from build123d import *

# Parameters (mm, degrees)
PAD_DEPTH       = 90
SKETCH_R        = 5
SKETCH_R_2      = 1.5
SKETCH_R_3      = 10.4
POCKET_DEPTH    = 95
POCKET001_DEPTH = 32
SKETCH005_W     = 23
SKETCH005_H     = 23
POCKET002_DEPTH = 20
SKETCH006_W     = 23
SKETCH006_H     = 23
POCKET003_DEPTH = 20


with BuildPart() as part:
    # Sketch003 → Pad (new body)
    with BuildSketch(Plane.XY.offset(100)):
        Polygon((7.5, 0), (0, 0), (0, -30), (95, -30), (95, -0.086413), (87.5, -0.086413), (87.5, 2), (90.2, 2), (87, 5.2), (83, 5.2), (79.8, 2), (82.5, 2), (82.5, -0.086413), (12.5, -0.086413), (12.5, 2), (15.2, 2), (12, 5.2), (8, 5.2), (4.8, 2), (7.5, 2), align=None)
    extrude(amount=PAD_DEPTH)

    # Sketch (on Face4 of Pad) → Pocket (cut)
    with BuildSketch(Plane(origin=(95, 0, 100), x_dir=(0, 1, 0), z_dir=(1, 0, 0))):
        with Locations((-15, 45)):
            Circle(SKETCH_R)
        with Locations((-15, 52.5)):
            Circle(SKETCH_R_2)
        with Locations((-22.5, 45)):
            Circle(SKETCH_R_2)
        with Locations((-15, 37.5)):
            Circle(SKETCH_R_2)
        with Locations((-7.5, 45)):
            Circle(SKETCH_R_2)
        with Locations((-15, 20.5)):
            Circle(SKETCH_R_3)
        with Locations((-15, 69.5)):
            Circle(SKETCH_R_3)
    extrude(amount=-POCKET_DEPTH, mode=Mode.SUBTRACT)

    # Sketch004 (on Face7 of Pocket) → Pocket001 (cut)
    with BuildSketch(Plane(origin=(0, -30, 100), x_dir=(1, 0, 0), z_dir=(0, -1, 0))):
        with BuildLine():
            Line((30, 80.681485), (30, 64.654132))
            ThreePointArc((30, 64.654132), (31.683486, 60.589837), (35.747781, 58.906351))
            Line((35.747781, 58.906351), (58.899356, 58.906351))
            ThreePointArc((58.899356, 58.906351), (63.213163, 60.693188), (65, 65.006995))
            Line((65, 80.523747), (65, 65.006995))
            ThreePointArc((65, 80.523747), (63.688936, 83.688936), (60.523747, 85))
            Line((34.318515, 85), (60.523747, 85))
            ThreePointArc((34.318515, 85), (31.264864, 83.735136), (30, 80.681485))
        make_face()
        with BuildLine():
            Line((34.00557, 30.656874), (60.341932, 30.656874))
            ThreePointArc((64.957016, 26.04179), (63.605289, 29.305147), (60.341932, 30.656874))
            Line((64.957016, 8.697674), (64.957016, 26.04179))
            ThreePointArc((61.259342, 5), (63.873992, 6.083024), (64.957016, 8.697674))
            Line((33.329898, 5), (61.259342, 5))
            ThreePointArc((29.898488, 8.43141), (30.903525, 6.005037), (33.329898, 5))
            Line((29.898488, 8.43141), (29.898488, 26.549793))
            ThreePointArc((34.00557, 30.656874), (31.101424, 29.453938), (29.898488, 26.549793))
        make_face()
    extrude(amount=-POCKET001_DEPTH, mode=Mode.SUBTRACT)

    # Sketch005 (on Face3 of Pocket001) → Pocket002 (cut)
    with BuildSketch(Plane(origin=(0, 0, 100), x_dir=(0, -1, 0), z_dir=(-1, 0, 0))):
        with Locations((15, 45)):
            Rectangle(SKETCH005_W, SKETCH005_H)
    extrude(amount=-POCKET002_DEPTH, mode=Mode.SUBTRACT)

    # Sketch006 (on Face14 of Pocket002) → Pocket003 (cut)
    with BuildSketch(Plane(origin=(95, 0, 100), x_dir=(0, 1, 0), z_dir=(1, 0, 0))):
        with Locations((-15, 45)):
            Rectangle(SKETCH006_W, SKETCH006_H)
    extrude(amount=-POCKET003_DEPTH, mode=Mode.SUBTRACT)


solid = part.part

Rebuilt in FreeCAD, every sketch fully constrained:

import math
import FreeCAD as App
import Part
import Sketcher
from FreeCAD import Vector
Q = App.Units.Quantity


def add_polygon(sketch, points):
    """Adds a closed chain of lines whose ends are joined by coincident constraints."""
    first, n = sketch.GeometryCount, len(points)
    for a, b in zip(points, points[1:] + points[:1]):
        sketch.addGeometry(Part.LineSegment(App.Vector(*a, 0), App.Vector(*b, 0)), False)
    for i in range(n):
        sketch.addConstraint(Sketcher.Constraint("Coincident", first + i, 2, first + (i + 1) % n, 1))

doc = App.newDocument("Part")
body = doc.addObject("PartDesign::Body", "Body")

# Sketch on XY plane
sketch1 = body.newObject("Sketcher::SketchObject", "Sketch")
sketch1.AttachmentSupport = (doc.getObject("XY_Plane"), [""])
sketch1.MapMode = "FlatFace"
sketch1.AttachmentOffset = App.Placement(Vector(0, 0, 100), App.Rotation())
add_polygon(sketch1, [(7.5, 0), (0, 0), (0, -30), (95, -30), (95, -0.086413), (87.5, -0.086413), (87.5, 2), (90.2, 2), (87, 5.2), (83, 5.2), (79.8, 2), (82.5, 2), (82.5, -0.086413), (12.5, -0.086413), (12.5, 2), (15.2, 2), (12, 5.2), (8, 5.2), (4.8, 2), (7.5, 2)])  # lines 0-19
sketch1.addConstraint([
    Sketcher.Constraint("Horizontal", 0),
    Sketcher.Constraint("Vertical", 1),
    Sketcher.Constraint("Horizontal", 2),
    Sketcher.Constraint("Vertical", 3),
    Sketcher.Constraint("Horizontal", 4),
    Sketcher.Constraint("Vertical", 5),
    Sketcher.Constraint("Horizontal", 6),
    Sketcher.Constraint("Horizontal", 8),
    Sketcher.Constraint("Horizontal", 10),
    Sketcher.Constraint("Vertical", 11),
    Sketcher.Constraint("Horizontal", 12),
    Sketcher.Constraint("Vertical", 13),
    Sketcher.Constraint("Horizontal", 14),
    Sketcher.Constraint("Horizontal", 16),
    Sketcher.Constraint("Horizontal", 18),
    Sketcher.Constraint("Vertical", 19),
    Sketcher.Constraint("Coincident", 0, 2, -1, 1),
    Sketcher.Constraint("Perpendicular", 7, 9),
    Sketcher.Constraint("Perpendicular", 9, 15),
    Sketcher.Constraint("Perpendicular", 15, 17),
    Sketcher.Constraint("Horizontal", 6, 2, 9, 2),
    Sketcher.Constraint("Horizontal", 4, 2, 11, 2),
    Sketcher.Constraint("Horizontal", 10, 2, 13, 2),
    Sketcher.Constraint("Horizontal", 8, 2, 15, 2),
    Sketcher.Constraint("Horizontal", 14, 2, 17, 2),
    Sketcher.Constraint("Equal", 0, 4),
    Sketcher.Constraint("Equal", 6, 10),
    Sketcher.Constraint("Equal", 10, 14),
    Sketcher.Constraint("Equal", 8, 16),
    Sketcher.Constraint("Equal", 14, 18),
    Sketcher.Constraint("Equal", 7, 9),
    Sketcher.Constraint("DistanceX", 2, 1, 2, 2, Q("95 mm")),
    Sketcher.Constraint("DistanceX", 8, 2, 8, 1, Q("4 mm")),
    Sketcher.Constraint("DistanceX", 12, 2, 12, 1, Q("70 mm")),
    Sketcher.Constraint("DistanceY", 1, 2, 1, 1, Q("30 mm")),
    Sketcher.Constraint("DistanceY", 19, 2, 19, 1, Q("2 mm")),
    Sketcher.Constraint("DistanceX", 0, 2, 0, 1, Q("7.5 mm")),
    Sketcher.Constraint("DistanceX", 6, 1, 6, 2, Q("2.7 mm")),
    Sketcher.Constraint("DistanceY", 3, 1, 3, 2, Q("29.913587 mm")),
])
pad1 = body.newObject("PartDesign::Pad", "Pad")
pad1.Profile = sketch1
pad1.Length = 90

# Sketch on YZ plane
sketch2 = body.newObject("Sketcher::SketchObject", "Sketch001")
sketch2.AttachmentSupport = (doc.getObject("YZ_Plane"), [""])
sketch2.MapMode = "FlatFace"
sketch2.AttachmentOffset = App.Placement(Vector(0, 0, 95), App.Rotation())
sketch2.addGeometry([
    Part.Circle(Vector(-15, 145, 0), Vector(0, 0, 1), 5),  # 0
    Part.Circle(Vector(-15, 152.5, 0), Vector(0, 0, 1), 1.5),  # 1
    Part.Circle(Vector(-22.5, 145, 0), Vector(0, 0, 1), 1.5),  # 2
    Part.Circle(Vector(-15, 137.5, 0), Vector(0, 0, 1), 1.5),  # 3
    Part.Circle(Vector(-7.5, 145, 0), Vector(0, 0, 1), 1.5),  # 4
    Part.Circle(Vector(-15, 120.5, 0), Vector(0, 0, 1), 10.4),  # 5
    Part.Circle(Vector(-15, 169.5, 0), Vector(0, 0, 1), 10.4),  # 6
], False)
sketch2.addConstraint([
    Sketcher.Constraint("Equal", 1, 2),
    Sketcher.Constraint("Equal", 2, 3),
    Sketcher.Constraint("Equal", 3, 4),
    Sketcher.Constraint("Equal", 5, 6),
    Sketcher.Constraint("Horizontal", 0, 3, 2, 3),
    Sketcher.Constraint("Horizontal", 2, 3, 4, 3),
    Sketcher.Constraint("Vertical", 0, 3, 1, 3),
    Sketcher.Constraint("Vertical", 1, 3, 3, 3),
    Sketcher.Constraint("Vertical", 3, 3, 5, 3),
    Sketcher.Constraint("Vertical", 5, 3, 6, 3),
    Sketcher.Constraint("Diameter", 0, Q("10 mm")),
    Sketcher.Constraint("Diameter", 1, Q("3 mm")),
    Sketcher.Constraint("Diameter", 5, Q("20.8 mm")),
    Sketcher.Constraint("DistanceX", 0, 3, -1, 1, Q("15 mm")),
    Sketcher.Constraint("DistanceY", -1, 1, 0, 3, Q("145 mm")),
    Sketcher.Constraint("DistanceY", 3, 3, 1, 3, Q("15 mm")),
    Sketcher.Constraint("DistanceX", 2, 3, 4, 3, Q("15 mm")),
    Sketcher.Constraint("DistanceY", 5, 3, 3, 3, Q("17 mm")),
    Sketcher.Constraint("DistanceY", 1, 3, 6, 3, Q("17 mm")),
    Sketcher.Constraint("DistanceY", -1, 1, 1, 3, Q("152.5 mm")),
    Sketcher.Constraint("DistanceX", 2, 3, -1, 1, Q("22.5 mm")),
])
pocket1 = body.newObject("PartDesign::Pocket", "Pocket")
pocket1.Profile = sketch2
pocket1.Length = 95

# Sketch on XZ plane
sketch3 = body.newObject("Sketcher::SketchObject", "Sketch002")
sketch3.AttachmentSupport = (doc.getObject("XZ_Plane"), [""])
sketch3.MapMode = "FlatFace"
sketch3.AttachmentOffset = App.Placement(Vector(0, 0, 30), App.Rotation())
sketch3.addGeometry([
    Part.LineSegment(Vector(30, 180.681485, 0), Vector(30, 164.654132, 0)),  # 0
    Part.ArcOfCircle(Part.Circle(Vector(35.747781, 164.654132, 0), Vector(0, 0, 1), 5.747781), math.radians(179.999997), math.radians(270.000003)),  # 1
    Part.LineSegment(Vector(35.747781, 158.906351, 0), Vector(58.899356, 158.906351, 0)),  # 2
    Part.ArcOfCircle(Part.Circle(Vector(58.899357, 165.006994, 0), Vector(0, 0, 1), 6.100643), math.radians(-90.000008), math.radians(0.000008)),  # 3
    Part.LineSegment(Vector(65, 165.006995, 0), Vector(65, 180.523747, 0)),  # 4
    Part.ArcOfCircle(Part.Circle(Vector(60.523748, 180.523748, 0), Vector(0, 0, 1), 4.476252), math.radians(-0.000007), math.radians(90.000007)),  # 5
    Part.LineSegment(Vector(60.523747, 185, 0), Vector(34.318515, 185, 0)),  # 6
    Part.ArcOfCircle(Part.Circle(Vector(34.318516, 180.681484, 0), Vector(0, 0, 1), 4.318516), math.radians(90.000011), math.radians(179.999989)),  # 7
    Part.LineSegment(Vector(60.341932, 130.656874, 0), Vector(34.00557, 130.656874, 0)),  # 8
    Part.ArcOfCircle(Part.Circle(Vector(34.005568, 126.549794, 0), Vector(0, 0, 1), 4.10708), math.radians(89.999978), math.radians(180.000008)),  # 9
    Part.LineSegment(Vector(29.898488, 126.549793, 0), Vector(29.898488, 108.43141, 0)),  # 10
    Part.ArcOfCircle(Part.Circle(Vector(33.329899, 108.431411, 0), Vector(0, 0, 1), 3.431411), math.radians(-179.999984), math.radians(-90.000016)),  # 11
    Part.LineSegment(Vector(33.329898, 105, 0), Vector(61.259342, 105, 0)),  # 12
    Part.ArcOfCircle(Part.Circle(Vector(61.259341, 108.697675, 0), Vector(0, 0, 1), 3.697675), math.radians(-89.999981), math.radians(-0.000019)),  # 13
    Part.LineSegment(Vector(64.957016, 108.697674, 0), Vector(64.957016, 126.04179, 0)),  # 14
    Part.ArcOfCircle(Part.Circle(Vector(60.341931, 126.041789, 0), Vector(0, 0, 1), 4.615085), math.radians(0.000008), math.radians(89.999992)),  # 15
], False)
sketch3.addConstraint([
    Sketcher.Constraint("Tangent", 0, 2, 1, 1),
    Sketcher.Constraint("Tangent", 1, 2, 2, 1),
    Sketcher.Constraint("Tangent", 2, 2, 3, 1),
    Sketcher.Constraint("Tangent", 3, 2, 4, 1),
    Sketcher.Constraint("Tangent", 4, 2, 5, 1),
    Sketcher.Constraint("Tangent", 5, 2, 6, 1),
    Sketcher.Constraint("Tangent", 6, 2, 7, 1),
    Sketcher.Constraint("Tangent", 7, 2, 0, 1),
    Sketcher.Constraint("Tangent", 8, 2, 9, 1),
    Sketcher.Constraint("Tangent", 9, 2, 10, 1),
    Sketcher.Constraint("Tangent", 10, 2, 11, 1),
    Sketcher.Constraint("Tangent", 11, 2, 12, 1),
    Sketcher.Constraint("Tangent", 12, 2, 13, 1),
    Sketcher.Constraint("Tangent", 13, 2, 14, 1),
    Sketcher.Constraint("Tangent", 14, 2, 15, 1),
    Sketcher.Constraint("Tangent", 15, 2, 8, 1),
    Sketcher.Constraint("Vertical", 0),
    Sketcher.Constraint("Horizontal", 2),
    Sketcher.Constraint("Vertical", 4),
    Sketcher.Constraint("Horizontal", 6),
    Sketcher.Constraint("Horizontal", 8),
    Sketcher.Constraint("Vertical", 10),
    Sketcher.Constraint("Horizontal", 12),
    Sketcher.Constraint("Vertical", 14),
    Sketcher.Constraint("DistanceX", -1, 1, 0, 2, Q("30 mm")),
    Sketcher.Constraint("DistanceX", -1, 1, 3, 2, Q("65 mm")),
    Sketcher.Constraint("DistanceY", -1, 1, 5, 2, Q("185 mm")),
    Sketcher.Constraint("DistanceY", -1, 1, 11, 2, Q("105 mm")),
    Sketcher.Constraint("Radius", 1, Q("5.747781 mm")),
    Sketcher.Constraint("Radius", 9, Q("4.10708 mm")),
    Sketcher.Constraint("Radius", 11, Q("3.431411 mm")),
    Sketcher.Constraint("Radius", 3, Q("6.100643 mm")),
    Sketcher.Constraint("Radius", 5, Q("4.476252 mm")),
    Sketcher.Constraint("Radius", 7, Q("4.318516 mm")),
    Sketcher.Constraint("Radius", 13, Q("3.697675 mm")),
    Sketcher.Constraint("Radius", 15, Q("4.615085 mm")),
    Sketcher.Constraint("DistanceY", 4, 1, 4, 2, Q("15.516752 mm")),
    Sketcher.Constraint("DistanceX", -1, 1, 11, 3, Q("33.329899 mm")),
    Sketcher.Constraint("DistanceY", 9, 3, 3, 3, Q("38.457201 mm")),
    Sketcher.Constraint("DistanceX", 8, 2, 8, 1, Q("26.336362 mm")),
])
pocket2 = body.newObject("PartDesign::Pocket", "Pocket001")
pocket2.Profile = sketch3
pocket2.Length = 32

# Sketch on YZ plane
sketch4 = body.newObject("Sketcher::SketchObject", "Sketch003")
sketch4.AttachmentSupport = (doc.getObject("YZ_Plane"), [""])
sketch4.MapMode = "FlatFace"
add_polygon(sketch4, [(-3.5, 156.5), (-3.5, 133.5), (-26.5, 133.5), (-26.5, 156.5)])  # lines 0-3
sketch4.addConstraint([
    Sketcher.Constraint("Vertical", 0),
    Sketcher.Constraint("Horizontal", 1),
    Sketcher.Constraint("Vertical", 2),
    Sketcher.Constraint("Horizontal", 3),
    Sketcher.Constraint("Equal", 3, 0),
    Sketcher.Constraint("DistanceX", 1, 2, 1, 1, Q("23 mm")),
    Sketcher.Constraint("DistanceX", 0, 2, -1, 1, Q("3.5 mm")),
    Sketcher.Constraint("DistanceY", -1, 1, 0, 2, Q("133.5 mm")),
])
pocket3 = body.newObject("PartDesign::Pocket", "Pocket002")
pocket3.Profile = sketch4
pocket3.Length = 20
pocket3.Reversed = True

# Sketch on YZ plane
sketch5 = body.newObject("Sketcher::SketchObject", "Sketch004")
sketch5.AttachmentSupport = (doc.getObject("YZ_Plane"), [""])
sketch5.MapMode = "FlatFace"
sketch5.AttachmentOffset = App.Placement(Vector(0, 0, 95), App.Rotation())
add_polygon(sketch5, [(-26.5, 156.5), (-26.5, 133.5), (-3.5, 133.5), (-3.5, 156.5)])  # lines 0-3
sketch5.addConstraint([
    Sketcher.Constraint("Vertical", 0),
    Sketcher.Constraint("Horizontal", 1),
    Sketcher.Constraint("Vertical", 2),
    Sketcher.Constraint("Horizontal", 3),
    Sketcher.Constraint("Equal", 3, 0),
    Sketcher.Constraint("DistanceX", 1, 1, 1, 2, Q("23 mm")),
    Sketcher.Constraint("DistanceX", 0, 2, -1, 1, Q("26.5 mm")),
    Sketcher.Constraint("DistanceY", -1, 1, 0, 2, Q("133.5 mm")),
])
pocket4 = body.newObject("PartDesign::Pocket", "Pocket003")
pocket4.Profile = sketch5
pocket4.Length = 20

doc.recompute()
